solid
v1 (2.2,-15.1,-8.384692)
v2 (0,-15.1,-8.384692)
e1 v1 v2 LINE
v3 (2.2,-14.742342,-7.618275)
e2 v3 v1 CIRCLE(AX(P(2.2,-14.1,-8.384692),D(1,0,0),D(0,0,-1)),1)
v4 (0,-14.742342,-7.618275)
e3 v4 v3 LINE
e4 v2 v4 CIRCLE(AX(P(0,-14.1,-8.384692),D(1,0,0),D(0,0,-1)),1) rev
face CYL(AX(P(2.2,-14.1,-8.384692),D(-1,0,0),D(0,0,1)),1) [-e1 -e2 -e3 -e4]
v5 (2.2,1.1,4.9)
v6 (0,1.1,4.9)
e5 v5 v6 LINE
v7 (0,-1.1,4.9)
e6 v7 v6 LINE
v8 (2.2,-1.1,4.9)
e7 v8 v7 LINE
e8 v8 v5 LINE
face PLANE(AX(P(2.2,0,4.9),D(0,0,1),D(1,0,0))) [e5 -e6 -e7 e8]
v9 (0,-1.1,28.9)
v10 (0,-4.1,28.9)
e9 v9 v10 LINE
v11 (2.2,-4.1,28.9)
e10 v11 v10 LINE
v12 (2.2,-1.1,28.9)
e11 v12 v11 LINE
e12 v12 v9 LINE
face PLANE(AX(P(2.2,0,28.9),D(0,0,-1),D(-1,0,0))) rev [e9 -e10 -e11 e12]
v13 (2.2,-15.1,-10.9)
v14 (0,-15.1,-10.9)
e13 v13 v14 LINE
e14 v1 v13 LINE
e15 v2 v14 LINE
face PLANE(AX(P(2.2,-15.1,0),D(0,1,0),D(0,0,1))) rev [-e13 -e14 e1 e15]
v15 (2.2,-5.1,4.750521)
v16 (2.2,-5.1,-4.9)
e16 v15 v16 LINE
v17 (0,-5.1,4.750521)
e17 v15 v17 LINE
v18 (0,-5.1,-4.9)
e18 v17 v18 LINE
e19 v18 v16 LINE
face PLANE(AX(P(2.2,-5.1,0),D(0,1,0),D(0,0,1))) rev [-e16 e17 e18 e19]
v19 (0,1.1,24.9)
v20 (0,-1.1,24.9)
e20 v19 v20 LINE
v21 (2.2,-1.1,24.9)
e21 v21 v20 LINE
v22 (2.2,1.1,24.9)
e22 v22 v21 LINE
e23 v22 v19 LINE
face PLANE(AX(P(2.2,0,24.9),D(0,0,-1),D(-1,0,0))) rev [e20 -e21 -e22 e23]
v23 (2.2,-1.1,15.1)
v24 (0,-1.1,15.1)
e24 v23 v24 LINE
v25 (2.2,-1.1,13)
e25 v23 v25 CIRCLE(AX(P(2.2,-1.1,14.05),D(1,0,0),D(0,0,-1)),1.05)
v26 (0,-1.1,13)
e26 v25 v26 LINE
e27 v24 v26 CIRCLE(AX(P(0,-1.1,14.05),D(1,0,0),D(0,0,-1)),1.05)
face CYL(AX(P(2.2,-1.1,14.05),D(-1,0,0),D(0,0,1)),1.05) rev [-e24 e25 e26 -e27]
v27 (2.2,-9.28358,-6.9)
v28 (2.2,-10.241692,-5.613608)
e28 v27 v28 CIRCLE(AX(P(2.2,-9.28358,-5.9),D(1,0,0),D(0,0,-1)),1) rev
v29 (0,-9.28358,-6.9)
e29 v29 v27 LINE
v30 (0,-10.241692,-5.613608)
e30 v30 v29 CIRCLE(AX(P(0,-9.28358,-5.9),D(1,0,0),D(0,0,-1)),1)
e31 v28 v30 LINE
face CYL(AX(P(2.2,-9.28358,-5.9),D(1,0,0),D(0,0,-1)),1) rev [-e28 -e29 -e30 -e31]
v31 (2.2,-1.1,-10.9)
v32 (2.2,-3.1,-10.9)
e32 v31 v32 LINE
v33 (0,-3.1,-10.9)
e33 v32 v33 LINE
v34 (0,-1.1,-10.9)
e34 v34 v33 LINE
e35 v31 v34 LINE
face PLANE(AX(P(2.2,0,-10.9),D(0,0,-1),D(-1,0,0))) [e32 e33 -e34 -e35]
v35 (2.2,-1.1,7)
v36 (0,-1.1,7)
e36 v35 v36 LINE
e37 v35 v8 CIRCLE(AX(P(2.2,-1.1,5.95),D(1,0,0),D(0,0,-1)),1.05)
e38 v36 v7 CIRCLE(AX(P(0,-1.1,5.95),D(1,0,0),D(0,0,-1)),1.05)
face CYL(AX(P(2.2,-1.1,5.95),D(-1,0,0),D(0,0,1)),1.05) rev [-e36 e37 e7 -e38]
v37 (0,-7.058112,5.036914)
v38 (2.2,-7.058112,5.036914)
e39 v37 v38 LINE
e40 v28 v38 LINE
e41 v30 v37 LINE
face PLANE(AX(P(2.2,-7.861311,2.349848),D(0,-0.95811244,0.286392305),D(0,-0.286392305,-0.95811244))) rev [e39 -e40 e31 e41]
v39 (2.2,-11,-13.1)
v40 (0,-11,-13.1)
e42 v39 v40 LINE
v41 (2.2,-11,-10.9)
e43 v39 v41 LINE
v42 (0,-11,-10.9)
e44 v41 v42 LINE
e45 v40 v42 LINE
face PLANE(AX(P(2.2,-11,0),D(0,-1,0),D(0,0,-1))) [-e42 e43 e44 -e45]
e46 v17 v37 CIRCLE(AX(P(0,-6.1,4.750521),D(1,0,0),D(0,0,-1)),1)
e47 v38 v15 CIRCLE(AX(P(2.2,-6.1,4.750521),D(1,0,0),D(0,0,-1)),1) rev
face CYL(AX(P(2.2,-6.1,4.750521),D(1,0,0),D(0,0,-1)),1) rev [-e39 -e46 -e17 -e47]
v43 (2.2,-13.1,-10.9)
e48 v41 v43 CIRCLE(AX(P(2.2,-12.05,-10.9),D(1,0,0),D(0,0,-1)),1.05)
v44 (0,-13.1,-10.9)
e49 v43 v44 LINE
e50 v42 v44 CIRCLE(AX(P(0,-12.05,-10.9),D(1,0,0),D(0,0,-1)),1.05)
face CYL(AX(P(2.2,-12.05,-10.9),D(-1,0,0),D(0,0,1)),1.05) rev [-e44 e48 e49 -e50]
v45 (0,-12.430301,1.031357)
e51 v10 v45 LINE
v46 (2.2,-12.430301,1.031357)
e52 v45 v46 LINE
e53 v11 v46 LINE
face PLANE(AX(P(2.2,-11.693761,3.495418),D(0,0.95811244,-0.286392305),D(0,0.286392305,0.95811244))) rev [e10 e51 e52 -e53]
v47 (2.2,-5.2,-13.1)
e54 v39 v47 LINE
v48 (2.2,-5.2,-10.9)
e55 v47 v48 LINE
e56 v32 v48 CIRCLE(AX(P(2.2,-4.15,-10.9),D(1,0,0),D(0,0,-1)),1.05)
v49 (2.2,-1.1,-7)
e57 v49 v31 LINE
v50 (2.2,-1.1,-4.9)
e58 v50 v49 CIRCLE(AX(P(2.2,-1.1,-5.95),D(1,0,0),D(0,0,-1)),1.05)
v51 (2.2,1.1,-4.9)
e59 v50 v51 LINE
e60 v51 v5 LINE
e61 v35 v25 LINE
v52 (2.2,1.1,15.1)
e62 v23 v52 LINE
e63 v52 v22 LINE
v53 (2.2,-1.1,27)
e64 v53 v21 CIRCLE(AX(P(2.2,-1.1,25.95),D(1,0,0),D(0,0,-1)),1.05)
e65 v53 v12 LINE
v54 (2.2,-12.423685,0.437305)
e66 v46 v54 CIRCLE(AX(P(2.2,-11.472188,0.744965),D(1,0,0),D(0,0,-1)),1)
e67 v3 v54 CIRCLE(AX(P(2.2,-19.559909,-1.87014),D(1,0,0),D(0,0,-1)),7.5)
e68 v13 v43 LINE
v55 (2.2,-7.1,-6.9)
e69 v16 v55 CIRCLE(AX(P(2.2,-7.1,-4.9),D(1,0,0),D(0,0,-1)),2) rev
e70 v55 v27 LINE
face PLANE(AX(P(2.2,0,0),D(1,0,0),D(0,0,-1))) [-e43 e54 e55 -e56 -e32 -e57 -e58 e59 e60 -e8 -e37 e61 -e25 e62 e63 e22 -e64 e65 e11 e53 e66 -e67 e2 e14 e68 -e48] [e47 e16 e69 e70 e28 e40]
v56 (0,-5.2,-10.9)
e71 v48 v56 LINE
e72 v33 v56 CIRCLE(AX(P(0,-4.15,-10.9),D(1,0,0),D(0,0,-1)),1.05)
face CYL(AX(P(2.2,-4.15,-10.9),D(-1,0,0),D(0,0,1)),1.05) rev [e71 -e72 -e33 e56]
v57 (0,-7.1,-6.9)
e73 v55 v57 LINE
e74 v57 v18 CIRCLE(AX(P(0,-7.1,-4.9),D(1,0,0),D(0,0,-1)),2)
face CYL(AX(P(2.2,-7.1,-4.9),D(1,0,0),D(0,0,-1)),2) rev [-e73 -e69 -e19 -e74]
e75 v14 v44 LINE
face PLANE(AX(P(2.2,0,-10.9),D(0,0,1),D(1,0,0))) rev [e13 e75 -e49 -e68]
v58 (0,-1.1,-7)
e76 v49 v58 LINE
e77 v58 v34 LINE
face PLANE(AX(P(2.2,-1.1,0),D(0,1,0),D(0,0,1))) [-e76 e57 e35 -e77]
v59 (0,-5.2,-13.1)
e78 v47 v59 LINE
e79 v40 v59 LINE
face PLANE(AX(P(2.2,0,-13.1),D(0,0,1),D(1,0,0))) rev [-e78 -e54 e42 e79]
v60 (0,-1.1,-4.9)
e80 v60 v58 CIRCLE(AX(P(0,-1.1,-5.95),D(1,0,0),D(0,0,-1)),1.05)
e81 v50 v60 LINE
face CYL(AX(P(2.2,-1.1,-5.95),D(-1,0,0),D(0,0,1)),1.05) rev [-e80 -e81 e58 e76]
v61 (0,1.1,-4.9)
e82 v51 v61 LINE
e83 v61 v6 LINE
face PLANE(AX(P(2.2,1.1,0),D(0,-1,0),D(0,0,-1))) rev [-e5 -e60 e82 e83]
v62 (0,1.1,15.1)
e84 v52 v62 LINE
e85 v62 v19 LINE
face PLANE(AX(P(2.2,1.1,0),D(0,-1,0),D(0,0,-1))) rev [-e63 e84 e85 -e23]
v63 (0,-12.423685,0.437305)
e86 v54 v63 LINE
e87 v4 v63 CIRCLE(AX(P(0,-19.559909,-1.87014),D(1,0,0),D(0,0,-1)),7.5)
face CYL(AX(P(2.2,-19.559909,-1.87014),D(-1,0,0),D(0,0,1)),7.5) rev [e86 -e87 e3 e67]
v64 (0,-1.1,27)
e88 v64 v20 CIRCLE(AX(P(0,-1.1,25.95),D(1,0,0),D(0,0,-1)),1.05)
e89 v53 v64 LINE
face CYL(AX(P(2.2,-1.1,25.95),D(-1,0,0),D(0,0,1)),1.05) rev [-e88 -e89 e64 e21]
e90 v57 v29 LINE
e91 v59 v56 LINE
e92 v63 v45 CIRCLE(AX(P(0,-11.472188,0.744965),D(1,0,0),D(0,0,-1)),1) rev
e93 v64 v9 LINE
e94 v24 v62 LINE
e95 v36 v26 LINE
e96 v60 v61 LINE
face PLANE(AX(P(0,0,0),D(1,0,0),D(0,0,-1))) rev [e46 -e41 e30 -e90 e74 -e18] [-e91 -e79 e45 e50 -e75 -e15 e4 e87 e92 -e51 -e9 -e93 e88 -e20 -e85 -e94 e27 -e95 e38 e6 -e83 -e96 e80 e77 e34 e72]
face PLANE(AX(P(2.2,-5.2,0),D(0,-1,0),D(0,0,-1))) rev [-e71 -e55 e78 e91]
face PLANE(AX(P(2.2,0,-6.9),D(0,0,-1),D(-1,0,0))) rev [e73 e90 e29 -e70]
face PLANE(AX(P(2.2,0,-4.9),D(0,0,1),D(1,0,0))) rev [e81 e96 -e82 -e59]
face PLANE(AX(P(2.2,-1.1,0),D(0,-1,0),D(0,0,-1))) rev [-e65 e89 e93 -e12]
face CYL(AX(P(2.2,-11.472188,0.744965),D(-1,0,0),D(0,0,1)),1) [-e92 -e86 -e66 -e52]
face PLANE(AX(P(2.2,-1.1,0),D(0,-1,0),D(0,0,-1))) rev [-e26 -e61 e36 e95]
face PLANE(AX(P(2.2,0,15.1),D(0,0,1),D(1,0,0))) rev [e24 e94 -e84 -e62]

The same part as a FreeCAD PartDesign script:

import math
import FreeCAD as App
import Part
import Sketcher
Q = App.Units.Quantity


def edges_at(feature, points):
    """Names of the edges that pass closest to the given points."""
    edges = feature.Shape.Edges
    near = lambda p: min(range(len(edges)), key=lambda i: edges[i].distToShape(Part.Vertex(*p))[0])
    return sorted({f"Edge{near(p) + 1}" for p in points})


def add_polygon(sketch, points):
    """Adds a closed chain of lines whose ends are joined by coincident constraints."""
    first, n = sketch.GeometryCount, len(points)
    for a, b in zip(points, points[1:] + points[:1]):
        sketch.addGeometry(Part.LineSegment(App.Vector(*a, 0), App.Vector(*b, 0)), False)
    for i in range(n):
        sketch.addConstraint(Sketcher.Constraint("Coincident", first + i, 2, first + (i + 1) % n, 1))

doc = App.newDocument("Part")
body = doc.addObject("PartDesign::Body", "Body")

# Sketch on YZ plane
sketch1 = body.newObject("Sketcher::SketchObject", "Sketch")
sketch1.AttachmentSupport = (doc.getObject("YZ_Plane"), [""])
sketch1.MapMode = "FlatFace"
sketch1.addGeometry(Part.ArcOfCircle(Part.Circle(App.Vector(-1.1, -6, 0), App.Vector(0, 0, 1), 1.1), math.radians(90), math.radians(270)), False)  # 0
sketch1.addGeometry(Part.LineSegment(App.Vector(-1.1, -4.9, 0), App.Vector(1.1, -4.9, 0)), False)  # 1
sketch1.addGeometry(Part.LineSegment(App.Vector(1.1, -4.9, 0), App.Vector(1.1, 4.9, 0)), False)  # 2
sketch1.addGeometry(Part.LineSegment(App.Vector(1.1, 4.9, 0), App.Vector(-1.1, 4.9, 0)), False)  # 3
sketch1.addGeometry(Part.ArcOfCircle(Part.Circle(App.Vector(-1.1, 6, 0), App.Vector(0, 0, 1), 1.1), math.radians(90), math.radians(270)), False)  # 4
sketch1.addGeometry(Part.LineSegment(App.Vector(-1.1, 7, 0), App.Vector(-1.1, 13, 0)), False)  # 5
sketch1.addGeometry(Part.ArcOfCircle(Part.Circle(App.Vector(-1.1, 14.1, 0), App.Vector(0, 0, 1), 1.1), math.radians(90), math.radians(270)), False)  # 6
sketch1.addGeometry(Part.LineSegment(App.Vector(-1.1, 15.1, 0), App.Vector(1.1, 15.1, 0)), False)  # 7
sketch1.addGeometry(Part.LineSegment(App.Vector(1.1, 15.1, 0), App.Vector(1.1, 24.9, 0)), False)  # 8
sketch1.addGeometry(Part.LineSegment(App.Vector(1.1, 24.9, 0), App.Vector(-1.1, 24.9, 0)), False)  # 9
sketch1.addGeometry(Part.ArcOfCircle(Part.Circle(App.Vector(-1.1, 25.9, 0), App.Vector(0, 0, 1), 1.1), math.radians(90), math.radians(270)), False)  # 10
sketch1.addGeometry(Part.LineSegment(App.Vector(-1.1, 27, 0), App.Vector(-1.1, 28.9, 0)), False)  # 11
sketch1.addGeometry(Part.LineSegment(App.Vector(-1.1, 28.9, 0), App.Vector(-4.1, 28.9, 0)), False)  # 12
sketch1.addGeometry(Part.LineSegment(App.Vector(-4.1, 28.9, 0), App.Vector(-12.5, 0.7, 0)), False)  # 13
sketch1.addGeometry(Part.ArcOfCircle(Part.Circle(App.Vector(-19.6, -1.9, 0), App.Vector(0, 0, 1), 7.5), math.radians(-54), math.radians(20)), False)  # 14
sketch1.addGeometry(Part.LineSegment(App.Vector(-15.1, -7.9, 0), App.Vector(-15.1, -10.9, 0)), False)  # 15
sketch1.addGeometry(Part.LineSegment(App.Vector(-15.1, -10.9, 0), App.Vector(-13.1, -10.9, 0)), False)  # 16
sketch1.addGeometry(Part.ArcOfCircle(Part.Circle(App.Vector(-12.1, -10.9, 0), App.Vector(0, 0, 1), 1.1), math.radians(0), math.radians(180)), False)  # 17
sketch1.addGeometry(Part.LineSegment(App.Vector(-11, -10.9, 0), App.Vector(-11, -13.1, 0)), False)  # 18
sketch1.addGeometry(Part.LineSegment(App.Vector(-11, -13.1, 0), App.Vector(-5.2, -13.1, 0)), False)  # 19
sketch1.addGeometry(Part.LineSegment(App.Vector(-5.2, -13.1, 0), App.Vector(-5.2, -10.9, 0)), False)  # 20
sketch1.addGeometry(Part.ArcOfCircle(Part.Circle(App.Vector(-4.2, -10.9, 0), App.Vector(0, 0, 1), 1.1), math.radians(0), math.radians(180)), False)  # 21
sketch1.addGeometry(Part.LineSegment(App.Vector(-3.1, -10.9, 0), App.Vector(-1.1, -10.9, 0)), False)  # 22
sketch1.addGeometry(Part.LineSegment(App.Vector(-1.1, -10.9, 0), App.Vector(-1.1, -7, 0)), False)  # 23
add_polygon(sketch1, [(-5.1, -6.9), (-10.6, -6.9), (-5.1, 11.6)])  # lines 24-26
sketch1.addConstraint(Sketcher.Constraint("Tangent", 0, 1, 1, 1))
sketch1.addConstraint(Sketcher.Constraint("Coincident", 1, 2, 2, 1))
sketch1.addConstraint(Sketcher.Constraint("Coincident", 2, 2, 3, 1))
sketch1.addConstraint(Sketcher.Constraint("Tangent", 3, 2, 4, 2))
sketch1.addConstraint(Sketcher.Constraint("Coincident", 4, 1, 5, 1))
sketch1.addConstraint(Sketcher.Constraint("Coincident", 5, 2, 6, 2))
sketch1.addConstraint(Sketcher.Constraint("Tangent", 6, 1, 7, 1))
sketch1.addConstraint(Sketcher.Constraint("Coincident", 7, 2, 8, 1))
sketch1.addConstraint(Sketcher.Constraint("Coincident", 8, 2, 9, 1))
sketch1.addConstraint(Sketcher.Constraint("Tangent", 9, 2, 10, 2))
sketch1.addConstraint(Sketcher.Constraint("Coincident", 10, 1, 11, 1))
sketch1.addConstraint(Sketcher.Constraint("Coincident", 11, 2, 12, 1))
sketch1.addConstraint(Sketcher.Constraint("Coincident", 12, 2, 13, 1))
sketch1.addConstraint(Sketcher.Constraint("Coincident", 13, 2, 14, 2))
sketch1.addConstraint(Sketcher.Constraint("Coincident", 14, 1, 15, 1))
sketch1.addConstraint(Sketcher.Constraint("Coincident", 15, 2, 16, 1))
sketch1.addConstraint(Sketcher.Constraint("Coincident", 16, 2, 17, 2))
sketch1.addConstraint(Sketcher.Constraint("Tangent", 17, 1, 18, 1))
sketch1.addConstraint(Sketcher.Constraint("Coincident", 18, 2, 19, 1))
sketch1.addConstraint(Sketcher.Constraint("Coincident", 19, 2, 20, 1))
sketch1.addConstraint(Sketcher.Constraint("Tangent", 20, 2, 21, 2))
sketch1.addConstraint(Sketcher.Constraint("Coincident", 21, 1, 22, 1))
sketch1.addConstraint(Sketcher.Constraint("Coincident", 22, 2, 23, 1))
sketch1.addConstraint(Sketcher.Constraint("Coincident", 23, 2, 0, 2))
sketch1.addConstraint(Sketcher.Constraint("Horizontal", 1))
sketch1.addConstraint(Sketcher.Constraint("Vertical", 2))
sketch1.addConstraint(Sketcher.Constraint("Horizontal", 3))
sketch1.addConstraint(Sketcher.Constraint("Vertical", 5))
sketch1.addConstraint(Sketcher.Constraint("Horizontal", 7))
sketch1.addConstraint(Sketcher.Constraint("Vertical", 8))
sketch1.addConstraint(Sketcher.Constraint("Horizontal", 9))
sketch1.addConstraint(Sketcher.Constraint("Vertical", 11))
sketch1.addConstraint(Sketcher.Constraint("Horizontal", 12))
sketch1.addConstraint(Sketcher.Constraint("Vertical", 15))
sketch1.addConstraint(Sketcher.Constraint("Horizontal", 16))
sketch1.addConstraint(Sketcher.Constraint("Vertical", 18))
sketch1.addConstraint(Sketcher.Constraint("Horizontal", 19))
sketch1.addConstraint(Sketcher.Constraint("Vertical", 20))
sketch1.addConstraint(Sketcher.Constraint("Horizontal", 22))
sketch1.addConstraint(Sketcher.Constraint("Vertical", 23))
sketch1.addConstraint(Sketcher.Constraint("Horizontal", 24))
sketch1.addConstraint(Sketcher.Constraint("Vertical", 26))
sketch1.addConstraint(Sketcher.Constraint("Equal", 0, 4))
sketch1.addConstraint(Sketcher.Constraint("Equal", 4, 6))
sketch1.addConstraint(Sketcher.Constraint("Equal", 6, 10))
sketch1.addConstraint(Sketcher.Constraint("Equal", 10, 17))
sketch1.addConstraint(Sketcher.Constraint("Equal", 17, 21))
sketch1.addConstraint(Sketcher.Constraint("Symmetric", 0, 1, 2, 2, -1, 1))
sketch1.addConstraint(Sketcher.Constraint("Parallel", 13, 25))
sketch1.addConstraint(Sketcher.Constraint("Horizontal", 17, 3, 21, 3))
sketch1.addConstraint(Sketcher.Constraint("Horizontal", 21, 3, 15, 2))
sketch1.addConstraint(Sketcher.Constraint("Horizontal", 20, 2, 21, 1))
sketch1.addConstraint(Sketcher.Constraint("Vertical", 0, 3, 4, 3))
sketch1.addConstraint(Sketcher.Constraint("Vertical", 4, 3, 6, 3))
sketch1.addConstraint(Sketcher.Constraint("Vertical", 6, 3, 10, 3))
sketch1.addConstraint(Sketcher.Constraint("Vertical", 3, 2, 4, 1))
sketch1.addConstraint(Sketcher.Constraint("Vertical", 2, 2, 7, 2))
sketch1.addConstraint(Sketcher.Constraint("Vertical", 9, 2, 10, 1))
sketch1.addConstraint(Sketcher.Constraint("Vertical", 11, 2, 22, 2))
sketch1.addConstraint(Sketcher.Constraint("Equal", 16, 22))
sketch1.addConstraint(Sketcher.Constraint("Equal", 2, 8))
sketch1.addConstraint(Sketcher.Constraint("Equal", 12, 15))
sketch1.addConstraint(Sketcher.Constraint("Equal", 9, 18))
sketch1.addConstraint(Sketcher.Constraint("Radius", 14, Q("7.5 mm")))
sketch1.addConstraint(Sketcher.Constraint("DistanceX", 12, 2, 12, 1, Q("3 mm")))
sketch1.addConstraint(Sketcher.Constraint("DistanceX", 16, 1, 16, 2, Q("2 mm")))
sketch1.addConstraint(Sketcher.Constraint("DistanceY", 5, 1, 5, 2, Q("6 mm")))
sketch1.addConstraint(Sketcher.Constraint("Radius", 0, Q("1.05 mm")))
sketch1.addConstraint(Sketcher.Constraint("DistanceX", 1, 1, 1, 2, Q("2.2 mm")))
sketch1.addConstraint(Sketcher.Constraint("DistanceX", 19, 1, 19, 2, Q("5.8 mm")))
sketch1.addConstraint(Sketcher.Constraint("DistanceY", 2, 1, 2, 2, Q("9.8 mm")))
sketch1.addConstraint(Sketcher.Constraint("DistanceY", 11, 1, 11, 2, Q("1.9 mm")))
sketch1.addConstraint(Sketcher.Constraint("DistanceY", 23, 1, 23, 2, Q("3.9 mm")))
sketch1.addConstraint(Sketcher.Constraint("DistanceY", 17, 1, 24, 2, Q("4 mm")))
sketch1.addConstraint(Sketcher.Constraint("DistanceX", 25, 2, 5, 2, Q("4 mm")))
sketch1.addConstraint(Sketcher.Constraint("DistanceX", 24, 2, 24, 1, Q("5.526212 mm")))
sketch1.addConstraint(Sketcher.Constraint("DistanceY", 26, 2, 26, 1, Q("18.48769 mm")))
sketch1.addConstraint(Sketcher.Constraint("DistanceX", 14, 3, -1, 1, Q("19.559909 mm")))
pad1 = body.newObject("PartDesign::Pad", "Pad")
pad1.Profile = sketch1
pad1.Length = 2.2
doc.recompute()

fillet = body.newObject("PartDesign::Fillet", "Fillet")
fillet.Base = (pad1, edges_at(pad1, [(1.1, -5.1, -6.9)]))
fillet.Radius = 2
doc.recompute()

fillet2 = body.newObject("PartDesign::Fillet", "Fillet001")
fillet2.Base = (fillet, edges_at(fillet, [
    (1.1, -5.1, 11.588),
    (1.1, -10.626, -6.9),
    (1.1, -12.522, 0.723),
    (1.1, -15.1, -7.9),
]))
fillet2.Radius = 1

doc.recompute()
